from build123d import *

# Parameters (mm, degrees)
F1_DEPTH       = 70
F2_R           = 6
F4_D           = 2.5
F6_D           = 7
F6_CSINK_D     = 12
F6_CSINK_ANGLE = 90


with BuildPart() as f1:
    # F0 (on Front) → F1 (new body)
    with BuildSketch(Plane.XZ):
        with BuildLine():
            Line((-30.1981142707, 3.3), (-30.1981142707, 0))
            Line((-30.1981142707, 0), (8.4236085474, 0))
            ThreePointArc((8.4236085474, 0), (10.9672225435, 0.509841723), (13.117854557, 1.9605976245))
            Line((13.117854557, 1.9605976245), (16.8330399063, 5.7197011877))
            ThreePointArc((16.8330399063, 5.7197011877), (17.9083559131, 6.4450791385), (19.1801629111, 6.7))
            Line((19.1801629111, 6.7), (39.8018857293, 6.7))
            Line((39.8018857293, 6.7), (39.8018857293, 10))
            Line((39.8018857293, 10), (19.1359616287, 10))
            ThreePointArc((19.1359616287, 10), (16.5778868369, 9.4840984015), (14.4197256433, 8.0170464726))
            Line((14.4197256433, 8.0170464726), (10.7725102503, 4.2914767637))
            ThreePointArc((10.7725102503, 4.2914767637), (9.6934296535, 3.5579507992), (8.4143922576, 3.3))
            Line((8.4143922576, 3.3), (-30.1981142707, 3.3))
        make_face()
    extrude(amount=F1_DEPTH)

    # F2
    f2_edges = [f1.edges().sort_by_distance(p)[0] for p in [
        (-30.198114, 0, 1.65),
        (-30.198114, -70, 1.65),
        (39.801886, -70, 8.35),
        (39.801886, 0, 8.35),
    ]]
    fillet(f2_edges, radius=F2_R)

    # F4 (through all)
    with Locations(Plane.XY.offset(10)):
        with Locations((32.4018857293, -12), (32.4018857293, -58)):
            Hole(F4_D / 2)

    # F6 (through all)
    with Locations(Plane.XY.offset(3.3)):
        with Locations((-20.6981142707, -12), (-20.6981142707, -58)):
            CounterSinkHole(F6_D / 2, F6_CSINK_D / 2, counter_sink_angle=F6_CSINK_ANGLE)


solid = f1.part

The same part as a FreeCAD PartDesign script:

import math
import FreeCAD as App
import Part
import Sketcher


def edges_at(feature, points):
    """Names of the edges that pass closest to the given points."""
    edges = feature.Shape.Edges
    near = lambda p: min(range(len(edges)), key=lambda i: edges[i].distToShape(Part.Vertex(*p))[0])
    return sorted({f"Edge{near(p) + 1}" for p in points})

doc = App.newDocument("Part")
body = doc.addObject("PartDesign::Body", "Body")

sketch1 = body.newObject("Sketcher::SketchObject", "Sketch")
sketch1.AttachmentSupport = (doc.getObject("XZ_Plane"), [""])
sketch1.MapMode = "FlatFace"
sketch1.addGeometry([
    Part.LineSegment(App.Vector(-30.2, 3.3, 0), App.Vector(-30.2, 0, 0)),
    Part.LineSegment(App.Vector(-30.2, 0, 0), App.Vector(8.4, 0, 0)),
    Part.ArcOfCircle(Part.Circle(App.Vector(8.4, 6.6, 0), App.Vector(0, 0, 1), 6.6), math.radians(-90), math.radians(-45)),
    Part.LineSegment(App.Vector(13.1, 2, 0), App.Vector(16.8, 5.7, 0)),
    Part.ArcOfCircle(Part.Circle(App.Vector(19.2, 3.4, 0), App.Vector(0, 0, 1), 3.3), math.radians(90), math.radians(135)),
    Part.LineSegment(App.Vector(19.2, 6.7, 0), App.Vector(39.8, 6.7, 0)),
    Part.LineSegment(App.Vector(39.8, 6.7, 0), App.Vector(39.8, 10, 0)),
    Part.LineSegment(App.Vector(39.8, 10, 0), App.Vector(19.1, 10, 0)),
    Part.ArcOfCircle(Part.Circle(App.Vector(19.1, 3.4, 0), App.Vector(0, 0, 1), 6.6), math.radians(90), math.radians(136)),
    Part.LineSegment(App.Vector(14.4, 8, 0), App.Vector(10.8, 4.3, 0)),
    Part.ArcOfCircle(Part.Circle(App.Vector(8.4, 6.6, 0), App.Vector(0, 0, 1), 3.3), math.radians(-90), math.radians(-44)),
    Part.LineSegment(App.Vector(8.4, 3.3, 0), App.Vector(-30.2, 3.3, 0)),
], False)
sketch1.addConstraint([
    Sketcher.Constraint("Coincident", 0, 2, 1, 1),
    Sketcher.Constraint("Tangent", 1, 2, 2, 1),
    Sketcher.Constraint("Tangent", 2, 2, 3, 1),
    Sketcher.Constraint("Tangent", 3, 2, 4, 2),
    Sketcher.Constraint("Tangent", 4, 1, 5, 1),
    Sketcher.Constraint("Coincident", 5, 2, 6, 1),
    Sketcher.Constraint("Coincident", 6, 2, 7, 1),
    Sketcher.Constraint("Tangent", 7, 2, 8, 1),
    Sketcher.Constraint("Tangent", 8, 2, 9, 1),
    Sketcher.Constraint("Tangent", 9, 2, 10, 2),
    Sketcher.Constraint("Tangent", 10, 1, 11, 1),
    Sketcher.Constraint("Coincident", 11, 2, 0, 1),
    Sketcher.Constraint("Vertical", 0),
    Sketcher.Constraint("Horizontal", 1),
    Sketcher.Constraint("Horizontal", 5),
    Sketcher.Constraint("Vertical", 6),
    Sketcher.Constraint("Horizontal", 7),
    Sketcher.Constraint("Horizontal", 11),
    Sketcher.Constraint("Equal", 2, 8),
    Sketcher.Constraint("Equal", 4, 10),
    Sketcher.Constraint("PointOnObject", 0, 2, -1),
    Sketcher.Constraint("Horizontal", 4, 3, 8, 3),
    Sketcher.Constraint("Horizontal", 2, 3, 10, 3),
    Sketcher.Constraint("Radius", 2, 6.6),
    Sketcher.Constraint("Radius", 4, 3.3),
    Sketcher.Constraint("DistanceY", -1, 1, 6, 2, 10.0),
    Sketcher.Constraint("DistanceY", -1, 1, 3, 2, 5.719701),
    Sketcher.Constraint("DistanceX", 8, 3, 4, 3, 0.044201),
    Sketcher.Constraint("DistanceX", 2, 3, 9, 2, 2.348902),
    Sketcher.Constraint("DistanceX", 1, 1, 1, 2, 38.621723),
    Sketcher.Constraint("DistanceX", 5, 1, 5, 2, 20.621723),
    Sketcher.Constraint("DistanceX", -1, 1, 2, 3, 8.423609),
])
pad1 = body.newObject("PartDesign::Pad", "Pad")
pad1.Profile = sketch1
pad1.Length = 70
doc.recompute()

fillet = body.newObject("PartDesign::Fillet", "Fillet")
fillet.Base = (pad1, edges_at(pad1, [
    (-30.198, 0, 1.65),
    (-30.198, -70, 1.65),
    (39.802, -70, 8.35),
    (39.802, 0, 8.35),
]))
fillet.Radius = 6

sketch2 = body.newObject("Sketcher::SketchObject", "Sketch001")
sketch2.AttachmentSupport = (doc.getObject("XY_Plane"), [""])
sketch2.MapMode = "FlatFace"
sketch2.AttachmentOffset = App.Placement(App.Vector(0, 0, 10), App.Rotation())
sketch2.addGeometry([
    Part.Circle(App.Vector(32.4, -12, 0), App.Vector(0, 0, 1), 1.2),
    Part.Circle(App.Vector(32.4, -58, 0), App.Vector(0, 0, 1), 1.2),
], False)
sketch2.addConstraint([
    Sketcher.Constraint("Equal", 0, 1),
    Sketcher.Constraint("Vertical", 0, 3, 1, 3),
    Sketcher.Constraint("Diameter", 0, 2.5),
    Sketcher.Constraint("DistanceY", 0, 3, -1, 1, 12.0),
    Sketcher.Constraint("DistanceY", 1, 3, -1, 1, 58.0),
    Sketcher.Constraint("DistanceX", -1, 1, 0, 3, 32.401886),
])
doc.recompute()
hole = body.newObject("PartDesign::Hole", "Hole")
hole.Profile = sketch2
hole.ThreadType = "None"
hole.Diameter = 2.5
hole.DepthType = "ThroughAll"

sketch3 = body.newObject("Sketcher::SketchObject", "Sketch002")
sketch3.AttachmentSupport = (doc.getObject("XY_Plane"), [""])
sketch3.MapMode = "FlatFace"
sketch3.AttachmentOffset = App.Placement(App.Vector(0, 0, 3.3), App.Rotation())
sketch3.addGeometry([
    Part.Circle(App.Vector(-20.7, -12, 0), App.Vector(0, 0, 1), 3.5),
    Part.Circle(App.Vector(-20.7, -58, 0), App.Vector(0, 0, 1), 3.5),
], False)
sketch3.addConstraint([
    Sketcher.Constraint("Equal", 0, 1),
    Sketcher.Constraint("Vertical", 0, 3, 1, 3),
    Sketcher.Constraint("Diameter", 0, 7.0),
    Sketcher.Constraint("DistanceY", 0, 3, -1, 1, 12.0),
    Sketcher.Constraint("DistanceY", 1, 3, -1, 1, 58.0),
    Sketcher.Constraint("DistanceX", 0, 3, -1, 1, 20.698114),
])
doc.recompute()
hole2 = body.newObject("PartDesign::Hole", "Hole001")
hole2.Profile = sketch3
hole2.ThreadType = "None"
hole2.Diameter = 7
hole2.DepthType = "ThroughAll"
hole2.HoleCutType = "Countersink"
hole2.HoleCutDiameter = 12
hole2.HoleCutCountersinkAngle = 90

doc.recompute()
